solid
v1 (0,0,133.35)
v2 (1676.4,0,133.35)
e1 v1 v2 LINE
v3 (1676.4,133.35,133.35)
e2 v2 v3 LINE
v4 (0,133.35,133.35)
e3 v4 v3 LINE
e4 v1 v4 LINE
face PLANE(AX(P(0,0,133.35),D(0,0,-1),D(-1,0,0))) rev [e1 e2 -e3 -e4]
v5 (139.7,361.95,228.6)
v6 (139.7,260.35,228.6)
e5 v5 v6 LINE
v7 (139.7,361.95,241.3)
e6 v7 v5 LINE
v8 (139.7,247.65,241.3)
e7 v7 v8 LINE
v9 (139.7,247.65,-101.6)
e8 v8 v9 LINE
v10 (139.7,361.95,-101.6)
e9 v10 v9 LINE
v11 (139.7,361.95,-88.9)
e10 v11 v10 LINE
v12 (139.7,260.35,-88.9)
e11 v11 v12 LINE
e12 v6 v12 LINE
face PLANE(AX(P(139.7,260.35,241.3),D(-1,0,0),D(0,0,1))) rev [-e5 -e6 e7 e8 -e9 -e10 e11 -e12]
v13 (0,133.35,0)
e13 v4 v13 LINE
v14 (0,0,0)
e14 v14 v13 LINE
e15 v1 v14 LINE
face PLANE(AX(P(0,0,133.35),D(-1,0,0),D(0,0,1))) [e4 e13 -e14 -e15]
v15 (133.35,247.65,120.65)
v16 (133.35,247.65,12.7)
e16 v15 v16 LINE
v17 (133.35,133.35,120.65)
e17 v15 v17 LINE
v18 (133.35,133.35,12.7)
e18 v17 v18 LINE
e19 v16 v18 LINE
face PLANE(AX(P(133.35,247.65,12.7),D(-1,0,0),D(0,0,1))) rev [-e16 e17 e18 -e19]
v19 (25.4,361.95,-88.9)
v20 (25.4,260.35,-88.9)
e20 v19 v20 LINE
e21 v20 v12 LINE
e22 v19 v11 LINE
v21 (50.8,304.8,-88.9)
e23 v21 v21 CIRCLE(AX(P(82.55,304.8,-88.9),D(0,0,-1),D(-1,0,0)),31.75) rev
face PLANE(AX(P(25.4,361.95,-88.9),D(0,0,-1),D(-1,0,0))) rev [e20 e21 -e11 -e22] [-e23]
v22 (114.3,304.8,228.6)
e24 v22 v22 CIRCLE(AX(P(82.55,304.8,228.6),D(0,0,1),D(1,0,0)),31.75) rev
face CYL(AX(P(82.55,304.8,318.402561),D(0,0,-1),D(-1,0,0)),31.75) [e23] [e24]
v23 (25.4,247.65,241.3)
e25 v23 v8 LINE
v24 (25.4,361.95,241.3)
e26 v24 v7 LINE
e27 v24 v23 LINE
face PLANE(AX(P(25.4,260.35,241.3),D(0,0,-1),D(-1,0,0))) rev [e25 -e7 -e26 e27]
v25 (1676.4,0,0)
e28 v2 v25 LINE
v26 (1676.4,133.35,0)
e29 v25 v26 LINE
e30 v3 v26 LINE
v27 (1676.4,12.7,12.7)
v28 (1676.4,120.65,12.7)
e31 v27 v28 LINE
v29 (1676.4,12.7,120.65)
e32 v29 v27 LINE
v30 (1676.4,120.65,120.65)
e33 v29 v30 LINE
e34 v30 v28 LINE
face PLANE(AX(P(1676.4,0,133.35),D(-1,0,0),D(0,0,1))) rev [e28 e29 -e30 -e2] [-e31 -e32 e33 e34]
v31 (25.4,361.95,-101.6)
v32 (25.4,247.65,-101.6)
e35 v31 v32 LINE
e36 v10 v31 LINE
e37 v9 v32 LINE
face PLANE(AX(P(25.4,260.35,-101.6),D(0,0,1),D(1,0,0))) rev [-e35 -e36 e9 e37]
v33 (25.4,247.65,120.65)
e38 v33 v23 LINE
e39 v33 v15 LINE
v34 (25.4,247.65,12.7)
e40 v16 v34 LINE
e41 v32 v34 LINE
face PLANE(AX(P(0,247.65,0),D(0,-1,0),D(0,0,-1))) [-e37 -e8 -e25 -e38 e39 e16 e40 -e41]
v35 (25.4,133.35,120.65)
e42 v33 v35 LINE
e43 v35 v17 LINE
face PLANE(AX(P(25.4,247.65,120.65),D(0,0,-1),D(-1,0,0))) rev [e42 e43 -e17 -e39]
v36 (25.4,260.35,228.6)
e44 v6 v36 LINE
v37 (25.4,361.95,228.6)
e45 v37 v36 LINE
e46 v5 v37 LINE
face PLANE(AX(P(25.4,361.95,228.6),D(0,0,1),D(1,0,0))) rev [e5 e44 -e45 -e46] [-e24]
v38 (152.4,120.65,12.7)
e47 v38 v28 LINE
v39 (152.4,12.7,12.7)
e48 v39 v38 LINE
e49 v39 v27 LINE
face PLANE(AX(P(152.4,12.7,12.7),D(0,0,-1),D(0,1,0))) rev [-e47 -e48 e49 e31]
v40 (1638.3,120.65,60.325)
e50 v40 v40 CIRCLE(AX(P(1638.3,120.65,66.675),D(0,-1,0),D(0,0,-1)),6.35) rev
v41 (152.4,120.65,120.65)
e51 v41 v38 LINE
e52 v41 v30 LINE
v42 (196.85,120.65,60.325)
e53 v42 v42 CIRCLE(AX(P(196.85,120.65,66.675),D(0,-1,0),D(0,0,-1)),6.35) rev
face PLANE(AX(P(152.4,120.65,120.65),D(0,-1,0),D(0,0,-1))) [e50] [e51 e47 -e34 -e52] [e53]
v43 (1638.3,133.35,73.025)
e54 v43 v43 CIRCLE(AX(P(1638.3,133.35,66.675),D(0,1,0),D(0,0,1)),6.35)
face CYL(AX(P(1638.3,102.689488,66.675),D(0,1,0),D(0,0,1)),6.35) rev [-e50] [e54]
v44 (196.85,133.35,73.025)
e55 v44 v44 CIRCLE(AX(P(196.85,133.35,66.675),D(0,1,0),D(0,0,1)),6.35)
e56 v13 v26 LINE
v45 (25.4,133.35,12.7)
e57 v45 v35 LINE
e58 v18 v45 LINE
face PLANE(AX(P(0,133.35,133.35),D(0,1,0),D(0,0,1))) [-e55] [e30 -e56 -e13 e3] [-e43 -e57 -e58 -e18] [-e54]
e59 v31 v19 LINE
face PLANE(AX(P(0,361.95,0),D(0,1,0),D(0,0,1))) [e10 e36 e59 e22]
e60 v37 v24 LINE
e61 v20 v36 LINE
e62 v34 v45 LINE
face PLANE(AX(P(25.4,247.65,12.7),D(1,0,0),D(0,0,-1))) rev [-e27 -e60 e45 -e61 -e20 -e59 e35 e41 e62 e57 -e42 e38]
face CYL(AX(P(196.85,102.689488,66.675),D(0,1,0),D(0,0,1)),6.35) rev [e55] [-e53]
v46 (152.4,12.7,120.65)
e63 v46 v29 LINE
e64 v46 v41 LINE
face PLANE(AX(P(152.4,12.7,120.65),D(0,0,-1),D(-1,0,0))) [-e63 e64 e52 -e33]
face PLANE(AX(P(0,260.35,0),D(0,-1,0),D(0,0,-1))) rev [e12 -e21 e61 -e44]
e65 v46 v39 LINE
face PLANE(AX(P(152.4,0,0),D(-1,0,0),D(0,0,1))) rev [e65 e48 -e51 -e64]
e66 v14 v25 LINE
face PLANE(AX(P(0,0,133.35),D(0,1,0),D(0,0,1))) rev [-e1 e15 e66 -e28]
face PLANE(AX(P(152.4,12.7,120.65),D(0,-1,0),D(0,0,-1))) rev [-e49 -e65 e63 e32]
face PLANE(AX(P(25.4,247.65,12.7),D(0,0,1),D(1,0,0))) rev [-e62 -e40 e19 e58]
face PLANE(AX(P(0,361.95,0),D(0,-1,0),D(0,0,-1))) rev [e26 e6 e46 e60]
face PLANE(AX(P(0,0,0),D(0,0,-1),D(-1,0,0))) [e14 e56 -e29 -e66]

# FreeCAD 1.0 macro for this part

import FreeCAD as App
import Part
import Sketcher
Q = App.Units.Quantity


def add_polygon(sketch, points):
    """Adds a closed chain of lines whose ends are joined by coincident constraints."""
    first, n = sketch.GeometryCount, len(points)
    for a, b in zip(points, points[1:] + points[:1]):
        sketch.addGeometry(Part.LineSegment(App.Vector(*a, 0), App.Vector(*b, 0)), False)
    for i in range(n):
        sketch.addConstraint(Sketcher.Constraint("Coincident", first + i, 2, first + (i + 1) % n, 1))

doc = App.newDocument("Part")
params = doc.addObject("Spreadsheet::Sheet", "Params")
for row, (alias, value) in enumerate([
    ("sketch1_width", "66 in"),
    ("sketch1_height", "5.25 in"),
    ("pad1_length", "5.25 in"),
    ("sketch2_width", "4.25 in"),
    ("pocket1_length", "60 in"),
    ("sketch3_width", "4.25 in"),
    ("pad2_length", "4.5 in"),
    ("sketch4_width", "4.5 in"),
    ("sketch4_height", "13.5 in"),
    ("pad3_length", "0.5 in"),
    ("sketch5_width", "4.5 in"),
    ("sketch5_height", "0.5 in"),
    ("pad4_length", "4 in"),
    ("sketch6_diameter", "2.5 in"),
    ("pad5_length", "12.5 in"),
    ("sketch7_diameter", "0.5 in"),
    ("pocket2_length", "0.5 in"),
], start=1):
    params.set(f"A{row}", alias)
    params.set(f"B{row}", "=" + value)
    params.setAlias(f"B{row}", alias)

body = doc.addObject("PartDesign::Body", "Body")

# Sketch on XY plane
sketch1 = body.newObject("Sketcher::SketchObject", "Sketch")
sketch1.AttachmentSupport = (doc.getObject("XY_Plane"), [""])
sketch1.MapMode = "FlatFace"
add_polygon(sketch1, [(0, 133), (0, 0), (1676, 0), (1676, 133)])  # lines 0-3
sketch1.addConstraint(Sketcher.Constraint("Vertical", 0))
sketch1.addConstraint(Sketcher.Constraint("Horizontal", 1))
sketch1.addConstraint(Sketcher.Constraint("Vertical", 2))
sketch1.addConstraint(Sketcher.Constraint("Horizontal", 3))
sketch1.addConstraint(Sketcher.Constraint("Coincident", 0, 2, -1, 1))
sketch1.addConstraint(Sketcher.Constraint("DistanceX", 1, 1, 1, 2, Q("66 in")))
sketch1.addConstraint(Sketcher.Constraint("DistanceY", 0, 2, 0, 1, Q("5.25 in")))
sketch1.setExpression("Constraints[9]", "Params.sketch1_width")
sketch1.setExpression("Constraints[10]", "Params.sketch1_height")
pad1 = body.newObject("PartDesign::Pad", "Pad")
pad1.Profile = sketch1
pad1.setExpression("Length", "Params.pad1_length")

# Sketch on YZ plane
sketch2 = body.newObject("Sketcher::SketchObject", "Sketch001")
sketch2.AttachmentSupport = (doc.getObject("YZ_Plane"), [""])
sketch2.MapMode = "FlatFace"
sketch2.AttachmentOffset = App.Placement(App.Vector(0, 0, 66 * 25.4), App.Rotation())
add_polygon(sketch2, [(121, 121), (13, 121), (13, 13), (121, 13)])  # lines 0-3
sketch2.addConstraint(Sketcher.Constraint("Horizontal", 0))
sketch2.addConstraint(Sketcher.Constraint("Vertical", 1))
sketch2.addConstraint(Sketcher.Constraint("Horizontal", 2))
sketch2.addConstraint(Sketcher.Constraint("Vertical", 3))
sketch2.addConstraint(Sketcher.Constraint("Equal", 2, 1))
sketch2.addConstraint(Sketcher.Constraint("DistanceX", 0, 2, 0, 1, Q("4.25 in")))
sketch2.addConstraint(Sketcher.Constraint("DistanceX", -1, 1, 0, 2, Q("0.5 in")))
sketch2.addConstraint(Sketcher.Constraint("DistanceY", -1, 1, 1, 2, Q("0.5 in")))
sketch2.setExpression("Constraints[9]", "Params.sketch2_width")
pocket1 = body.newObject("PartDesign::Pocket", "Pocket")
pocket1.Profile = sketch2
pocket1.setExpression("Length", "Params.pocket1_length")

# Sketch on XZ plane
sketch3 = body.newObject("Sketcher::SketchObject", "Sketch002")
sketch3.AttachmentSupport = (doc.getObject("XZ_Plane"), [""])
sketch3.MapMode = "FlatFace"
sketch3.AttachmentOffset = App.Placement(App.Vector(0, 0, -5.25 * 25.4), App.Rotation())
add_polygon(sketch3, [(25, 13), (25, 121), (133, 121), (133, 13)])  # lines 0-3
sketch3.addConstraint(Sketcher.Constraint("Vertical", 0))
sketch3.addConstraint(Sketcher.Constraint("Horizontal", 1))
sketch3.addConstraint(Sketcher.Constraint("Vertical", 2))
sketch3.addConstraint(Sketcher.Constraint("Horizontal", 3))
sketch3.addConstraint(Sketcher.Constraint("Equal", 3, 0))
sketch3.addConstraint(Sketcher.Constraint("DistanceX", -1, 1, 0, 2, Q("1 in")))
sketch3.addConstraint(Sketcher.Constraint("DistanceX", 1, 1, 1, 2, Q("4.25 in")))
sketch3.addConstraint(Sketcher.Constraint("DistanceY", -1, 1, 2, 2, Q("0.5 in")))
sketch3.setExpression("Constraints[10]", "Params.sketch3_width")
pad2 = body.newObject("PartDesign::Pad", "Pad001")
pad2.Profile = sketch3
pad2.setExpression("Length", "Params.pad2_length")
pad2.Reversed = True

# Sketch on XZ plane
sketch4 = body.newObject("Sketcher::SketchObject", "Sketch003")
sketch4.AttachmentSupport = (doc.getObject("XZ_Plane"), [""])
sketch4.MapMode = "FlatFace"
sketch4.AttachmentOffset = App.Placement(App.Vector(0, 0, -9.75 * 25.4), App.Rotation())
add_polygon(sketch4, [(25, -102), (25, 241), (140, 241), (140, -102)])  # lines 0-3
sketch4.addConstraint(Sketcher.Constraint("Vertical", 0))
sketch4.addConstraint(Sketcher.Constraint("Horizontal", 1))
sketch4.addConstraint(Sketcher.Constraint("Vertical", 2))
sketch4.addConstraint(Sketcher.Constraint("Horizontal", 3))
sketch4.addConstraint(Sketcher.Constraint("DistanceX", 1, 1, 1, 2, Q("4.5 in")))
sketch4.addConstraint(Sketcher.Constraint("DistanceY", 0, 1, 0, 2, Q("13.5 in")))
sketch4.addConstraint(Sketcher.Constraint("DistanceX", -1, 1, 0, 2, Q("1 in")))
sketch4.addConstraint(Sketcher.Constraint("DistanceY", 2, 2, -1, 1, Q("4 in")))
sketch4.setExpression("Constraints[8]", "Params.sketch4_width")
sketch4.setExpression("Constraints[9]", "Params.sketch4_height")
pad3 = body.newObject("PartDesign::Pad", "Pad002")
pad3.Profile = sketch4
pad3.setExpression("Length", "Params.pad3_length")
pad3.Reversed = True

# Sketch on XZ plane
sketch5 = body.newObject("Sketcher::SketchObject", "Sketch004")
sketch5.AttachmentSupport = (doc.getObject("XZ_Plane"), [""])
sketch5.MapMode = "FlatFace"
sketch5.AttachmentOffset = App.Placement(App.Vector(0, 0, -10.25 * 25.4), App.Rotation())
add_polygon(sketch5, [(25, -102), (25, -89), (140, -89), (140, -102)])  # lines 0-3
add_polygon(sketch5, [(25, 229), (25, 241), (140, 241), (140, 229)])  # lines 4-7
sketch5.addConstraint(Sketcher.Constraint("Vertical", 0))
sketch5.addConstraint(Sketcher.Constraint("Horizontal", 1))
sketch5.addConstraint(Sketcher.Constraint("Vertical", 2))
sketch5.addConstraint(Sketcher.Constraint("Horizontal", 3))
sketch5.addConstraint(Sketcher.Constraint("Vertical", 4))
sketch5.addConstraint(Sketcher.Constraint("Horizontal", 5))
sketch5.addConstraint(Sketcher.Constraint("Vertical", 6))
sketch5.addConstraint(Sketcher.Constraint("Horizontal", 7))
sketch5.addConstraint(Sketcher.Constraint("Vertical", 3, 2, 4, 2))
sketch5.addConstraint(Sketcher.Constraint("Vertical", 2, 2, 5, 2))
sketch5.addConstraint(Sketcher.Constraint("Equal", 2, 4))
sketch5.addConstraint(Sketcher.Constraint("DistanceX", 1, 1, 1, 2, Q("4.5 in")))
sketch5.addConstraint(Sketcher.Constraint("DistanceY", 0, 1, 0, 2, Q("0.5 in")))
sketch5.addConstraint(Sketcher.Constraint("DistanceX", -1, 1, 0, 2, Q("1 in")))
sketch5.addConstraint(Sketcher.Constraint("DistanceY", 2, 2, -1, 1, Q("4 in")))
sketch5.addConstraint(Sketcher.Constraint("DistanceY", -1, 1, 6, 2, Q("9 in")))
sketch5.setExpression("Constraints[19]", "Params.sketch5_width")
sketch5.setExpression("Constraints[20]", "Params.sketch5_height")
pad4 = body.newObject("PartDesign::Pad", "Pad003")
pad4.Profile = sketch5
pad4.setExpression("Length", "Params.pad4_length")
pad4.Reversed = True

# Sketch on XY plane
sketch6 = body.newObject("Sketcher::SketchObject", "Sketch005")
sketch6.AttachmentSupport = (doc.getObject("XY_Plane"), [""])
sketch6.MapMode = "FlatFace"
sketch6.AttachmentOffset = App.Placement(App.Vector(0, 0, -3.5 * 25.4), App.Rotation())
sketch6.addGeometry(Part.Circle(App.Vector(83, 305, 0), App.Vector(0, 0, 1), 32), False)
sketch6.addConstraint(Sketcher.Constraint("Diameter", 0, Q("2.5 in")))
sketch6.addConstraint(Sketcher.Constraint("DistanceY", -1, 1, 0, 3, Q("12 in")))
sketch6.addConstraint(Sketcher.Constraint("DistanceX", -1, 1, 0, 3, Q("3.25 in")))
sketch6.setExpression("Constraints[0]", "Params.sketch6_diameter")
pad5 = body.newObject("PartDesign::Pad", "Pad004")
pad5.Profile = sketch6
pad5.setExpression("Length", "Params.pad5_length")

# Sketch on XZ plane
sketch7 = body.newObject("Sketcher::SketchObject", "Sketch006")
sketch7.AttachmentSupport = (doc.getObject("XZ_Plane"), [""])
sketch7.MapMode = "FlatFace"
sketch7.AttachmentOffset = App.Placement(App.Vector(0, 0, -5.25 * 25.4), App.Rotation())
sketch7.addGeometry(Part.Circle(App.Vector(197, 67, 0), App.Vector(0, 0, 1), 6), False)
sketch7.addGeometry(Part.Circle(App.Vector(1638, 67, 0), App.Vector(0, 0, 1), 6), False)
sketch7.addConstraint(Sketcher.Constraint("Equal", 0, 1))
sketch7.addConstraint(Sketcher.Constraint("Horizontal", 0, 3, 1, 3))
sketch7.addConstraint(Sketcher.Constraint("Diameter", 0, Q("0.5 in")))
sketch7.addConstraint(Sketcher.Constraint("DistanceX", -1, 1, 1, 3, Q("64.5 in")))
sketch7.addConstraint(Sketcher.Constraint("DistanceX", -1, 1, 0, 3, Q("7.75 in")))
sketch7.addConstraint(Sketcher.Constraint("DistanceY", -1, 1, 0, 3, Q("2.625 in")))
sketch7.setExpression("Constraints[2]", "Params.sketch7_diameter")
pocket2 = body.newObject("PartDesign::Pocket", "Pocket001")
pocket2.Profile = sketch7
pocket2.setExpression("Length", "Params.pocket2_length")
pocket2.Reversed = True

doc.recompute()
